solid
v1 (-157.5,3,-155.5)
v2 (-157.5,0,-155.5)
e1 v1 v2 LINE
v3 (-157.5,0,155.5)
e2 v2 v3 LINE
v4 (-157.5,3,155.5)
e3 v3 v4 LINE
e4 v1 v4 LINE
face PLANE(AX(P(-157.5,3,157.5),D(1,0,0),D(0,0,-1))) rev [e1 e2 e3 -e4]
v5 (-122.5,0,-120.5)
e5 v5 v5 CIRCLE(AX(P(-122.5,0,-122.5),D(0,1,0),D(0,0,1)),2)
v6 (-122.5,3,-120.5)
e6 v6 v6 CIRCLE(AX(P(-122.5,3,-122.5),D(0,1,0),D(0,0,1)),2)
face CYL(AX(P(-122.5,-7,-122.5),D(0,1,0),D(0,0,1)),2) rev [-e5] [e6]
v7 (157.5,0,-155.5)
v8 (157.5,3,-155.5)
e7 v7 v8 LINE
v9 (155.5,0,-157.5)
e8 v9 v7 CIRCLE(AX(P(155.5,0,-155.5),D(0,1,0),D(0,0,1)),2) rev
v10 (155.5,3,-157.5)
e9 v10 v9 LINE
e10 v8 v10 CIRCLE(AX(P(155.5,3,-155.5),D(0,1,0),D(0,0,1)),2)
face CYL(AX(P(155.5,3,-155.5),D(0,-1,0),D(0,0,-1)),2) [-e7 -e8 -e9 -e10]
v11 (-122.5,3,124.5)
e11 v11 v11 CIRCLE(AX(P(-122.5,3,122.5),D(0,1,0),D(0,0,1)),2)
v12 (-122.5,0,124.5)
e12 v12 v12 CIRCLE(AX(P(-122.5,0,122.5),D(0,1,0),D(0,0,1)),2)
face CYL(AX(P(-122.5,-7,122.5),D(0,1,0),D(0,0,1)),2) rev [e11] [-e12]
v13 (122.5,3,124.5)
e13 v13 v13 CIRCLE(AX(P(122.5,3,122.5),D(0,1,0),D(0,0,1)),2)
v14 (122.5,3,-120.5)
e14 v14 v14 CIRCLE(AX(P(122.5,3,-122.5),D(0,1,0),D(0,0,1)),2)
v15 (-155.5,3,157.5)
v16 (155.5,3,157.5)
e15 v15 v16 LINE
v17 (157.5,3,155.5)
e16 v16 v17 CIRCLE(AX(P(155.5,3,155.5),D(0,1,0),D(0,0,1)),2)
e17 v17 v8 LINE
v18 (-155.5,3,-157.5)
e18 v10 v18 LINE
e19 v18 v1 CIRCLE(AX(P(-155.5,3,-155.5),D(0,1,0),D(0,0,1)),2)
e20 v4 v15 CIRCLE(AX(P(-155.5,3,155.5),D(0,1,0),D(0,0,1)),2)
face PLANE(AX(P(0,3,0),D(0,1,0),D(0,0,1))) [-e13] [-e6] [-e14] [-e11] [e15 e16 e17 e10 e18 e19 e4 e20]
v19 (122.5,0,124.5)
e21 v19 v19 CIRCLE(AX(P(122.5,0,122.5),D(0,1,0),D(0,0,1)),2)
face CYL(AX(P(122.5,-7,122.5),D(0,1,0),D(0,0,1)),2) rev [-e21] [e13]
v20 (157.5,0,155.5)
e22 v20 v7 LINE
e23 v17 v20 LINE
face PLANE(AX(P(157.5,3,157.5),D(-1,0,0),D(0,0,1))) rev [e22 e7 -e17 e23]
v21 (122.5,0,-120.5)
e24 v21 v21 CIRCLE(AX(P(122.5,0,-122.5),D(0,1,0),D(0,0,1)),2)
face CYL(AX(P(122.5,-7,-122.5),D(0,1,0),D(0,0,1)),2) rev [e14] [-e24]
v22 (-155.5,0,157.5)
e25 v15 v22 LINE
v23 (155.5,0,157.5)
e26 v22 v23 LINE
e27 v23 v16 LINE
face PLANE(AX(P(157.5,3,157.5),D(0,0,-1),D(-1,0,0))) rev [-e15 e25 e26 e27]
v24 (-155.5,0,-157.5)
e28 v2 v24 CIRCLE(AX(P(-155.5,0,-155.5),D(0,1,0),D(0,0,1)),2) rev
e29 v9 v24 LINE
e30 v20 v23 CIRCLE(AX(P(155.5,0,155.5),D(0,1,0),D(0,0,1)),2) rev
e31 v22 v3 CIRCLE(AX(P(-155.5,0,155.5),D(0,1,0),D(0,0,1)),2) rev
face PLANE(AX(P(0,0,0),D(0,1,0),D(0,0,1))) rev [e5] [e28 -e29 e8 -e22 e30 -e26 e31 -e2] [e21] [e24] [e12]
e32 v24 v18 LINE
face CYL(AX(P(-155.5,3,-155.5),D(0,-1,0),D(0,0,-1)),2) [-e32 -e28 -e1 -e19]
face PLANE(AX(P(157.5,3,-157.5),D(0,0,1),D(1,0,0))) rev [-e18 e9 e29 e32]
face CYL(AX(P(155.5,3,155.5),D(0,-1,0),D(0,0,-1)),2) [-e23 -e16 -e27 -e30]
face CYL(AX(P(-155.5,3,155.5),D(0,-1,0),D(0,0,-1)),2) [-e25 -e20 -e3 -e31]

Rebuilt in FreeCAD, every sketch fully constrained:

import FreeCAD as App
import Part
import Sketcher

V = App.Vector
Q = App.Units.Quantity


def edges_at(feature, points):
    """Names of the edges that pass closest to the given points."""
    edges = feature.Shape.Edges
    near = lambda p: min(range(len(edges)), key=lambda i: edges[i].distToShape(Part.Vertex(*p))[0])
    return sorted({f"Edge{near(p) + 1}" for p in points})

doc = App.newDocument("Part")
params = doc.addObject("Spreadsheet::Sheet", "Params")
for row, (alias, value) in enumerate([
    ("sketch1_width", "315 mm"),
    ("pad1_length", "3 mm"),
    ("sketch2_diameter", "4 mm"),
    ("pocket1_length", "10 mm"),
    ("fillet_radius", "2 mm"),
], start=1):
    params.set(f"A{row}", alias)
    params.set(f"B{row}", "=" + value)
    params.setAlias(f"B{row}", alias)

body = doc.addObject("PartDesign::Body", "Body")

# Sketch on XZ plane
sketch1 = body.newObject("Sketcher::SketchObject", "Sketch")
sketch1.AttachmentSupport = (doc.getObject("XZ_Plane"), [""])
sketch1.MapMode = "FlatFace"
sketch1.addGeometry(Part.LineSegment(V(-158, -158, 0), V(-158, 158, 0)), False)
sketch1.addGeometry(Part.LineSegment(V(-158, 158, 0), V(158, 158, 0)), False)
sketch1.addGeometry(Part.LineSegment(V(158, 158, 0), V(158, -158, 0)), False)
sketch1.addGeometry(Part.LineSegment(V(158, -158, 0), V(-158, -158, 0)), False)
sketch1.addConstraint(Sketcher.Constraint("Coincident", 0, 2, 1, 1))
sketch1.addConstraint(Sketcher.Constraint("Coincident", 1, 2, 2, 1))
sketch1.addConstraint(Sketcher.Constraint("Coincident", 2, 2, 3, 1))
sketch1.addConstraint(Sketcher.Constraint("Coincident", 3, 2, 0, 1))
sketch1.addConstraint(Sketcher.Constraint("Vertical", 0))
sketch1.addConstraint(Sketcher.Constraint("Horizontal", 1))
sketch1.addConstraint(Sketcher.Constraint("Vertical", 2))
sketch1.addConstraint(Sketcher.Constraint("Horizontal", 3))
sketch1.addConstraint(Sketcher.Constraint("Symmetric", 0, 2, 2, 2, -1, 1))
sketch1.addConstraint(Sketcher.Constraint("Equal", 3, 0))
sketch1.addConstraint(Sketcher.Constraint("DistanceX", 1, 1, 1, 2, Q("315 mm")))
sketch1.setExpression("Constraints[10]", "Params.sketch1_width")
pad1 = body.newObject("PartDesign::Pad", "Pad")
pad1.Profile = sketch1
pad1.setExpression("Length", "Params.pad1_length")
pad1.Reversed = True

# Sketch on XZ plane
sketch2 = body.newObject("Sketcher::SketchObject", "Sketch001")
sketch2.AttachmentSupport = (doc.getObject("XZ_Plane"), [""])
sketch2.MapMode = "FlatFace"
sketch2.AttachmentOffset = App.Placement(V(0, 0, -3), App.Rotation())
sketch2.addGeometry(Part.Circle(V(-122.5, -122.5, 0), V(0, 0, 1), 2), False)
sketch2.addGeometry(Part.Circle(V(122.5, -122.5, 0), V(0, 0, 1), 2), False)
sketch2.addGeometry(Part.Circle(V(122.5, 122.5, 0), V(0, 0, 1), 2), False)
sketch2.addGeometry(Part.Circle(V(-122.5, 122.5, 0), V(0, 0, 1), 2), False)
sketch2.addConstraint(Sketcher.Constraint("Equal", 0, 1))
sketch2.addConstraint(Sketcher.Constraint("Equal", 1, 2))
sketch2.addConstraint(Sketcher.Constraint("Equal", 2, 3))
sketch2.addConstraint(Sketcher.Constraint("Symmetric", 0, 3, 2, 3, -1, 1))
sketch2.addConstraint(Sketcher.Constraint("Symmetric", 1, 3, 3, 3, -1, 1))
sketch2.addConstraint(Sketcher.Constraint("Symmetric", 0, 3, 1, 3, -2))
sketch2.addConstraint(Sketcher.Constraint("Diameter", 0, Q("4 mm")))
sketch2.addConstraint(Sketcher.Constraint("DistanceX", 0, 3, 1, 3, Q("245 mm")))
sketch2.addConstraint(Sketcher.Constraint("DistanceY", 1, 3, 2, 3, Q("245 mm")))
sketch2.setExpression("Constraints[6]", "Params.sketch2_diameter")
pocket1 = body.newObject("PartDesign::Pocket", "Pocket")
pocket1.Profile = sketch2
pocket1.setExpression("Length", "Params.pocket1_length")
pocket1.Reversed = True
doc.recompute()

fillet = body.newObject("PartDesign::Fillet", "Fillet")
fillet.Base = (pocket1, edges_at(pocket1, [
    (-157.5, 1.5, -157.5),
    (157.5, 1.5, -157.5),
    (157.5, 1.5, 157.5),
    (-157.5, 1.5, 157.5),
]))
fillet.setExpression("Radius", "Params.fillet_radius")

doc.recompute()
